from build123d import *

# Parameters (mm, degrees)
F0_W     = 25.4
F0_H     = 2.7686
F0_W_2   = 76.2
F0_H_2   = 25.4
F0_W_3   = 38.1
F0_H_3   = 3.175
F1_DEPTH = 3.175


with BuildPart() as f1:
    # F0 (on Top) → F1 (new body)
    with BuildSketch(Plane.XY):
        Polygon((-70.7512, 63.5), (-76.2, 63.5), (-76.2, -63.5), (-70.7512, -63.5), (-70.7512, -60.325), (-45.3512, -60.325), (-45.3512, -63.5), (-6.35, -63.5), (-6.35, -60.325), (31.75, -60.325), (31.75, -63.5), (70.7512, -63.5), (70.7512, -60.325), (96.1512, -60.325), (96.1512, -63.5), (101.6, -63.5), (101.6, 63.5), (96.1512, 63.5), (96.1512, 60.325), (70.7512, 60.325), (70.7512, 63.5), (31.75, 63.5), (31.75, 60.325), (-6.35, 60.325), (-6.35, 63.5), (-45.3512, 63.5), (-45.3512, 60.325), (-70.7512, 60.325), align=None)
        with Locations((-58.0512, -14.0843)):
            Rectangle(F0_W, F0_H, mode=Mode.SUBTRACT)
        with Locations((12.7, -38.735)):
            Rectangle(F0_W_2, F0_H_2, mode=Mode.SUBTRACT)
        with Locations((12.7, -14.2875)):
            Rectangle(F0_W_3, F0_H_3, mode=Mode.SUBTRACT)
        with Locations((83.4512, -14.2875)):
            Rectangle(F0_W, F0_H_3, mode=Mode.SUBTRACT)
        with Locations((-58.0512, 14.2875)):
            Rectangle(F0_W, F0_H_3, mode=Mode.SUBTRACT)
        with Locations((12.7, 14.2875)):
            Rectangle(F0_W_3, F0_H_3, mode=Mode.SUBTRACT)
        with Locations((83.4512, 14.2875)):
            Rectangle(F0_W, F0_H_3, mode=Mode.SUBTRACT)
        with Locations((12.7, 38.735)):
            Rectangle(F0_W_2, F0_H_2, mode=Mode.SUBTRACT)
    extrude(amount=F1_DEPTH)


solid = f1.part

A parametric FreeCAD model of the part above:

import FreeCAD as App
import Part
import Sketcher

V = App.Vector
Q = App.Units.Quantity

doc = App.newDocument("Part")
body = doc.addObject("PartDesign::Body", "Body")

# Sketch on XY plane
sketch1 = doc.addObject("Sketcher::SketchObject", "Sketch")
body.addObject(sketch1)
sketch1.AttachmentSupport = (doc.XY_Plane, [""])
sketch1.MapMode = "FlatFace"
sketch1.addGeometry([
    Part.LineSegment(V(-70.7512, 63.5, 0), V(-76.2, 63.5, 0)),  # 0
    Part.LineSegment(V(-76.2, 63.5, 0), V(-76.2, -63.5, 0)),  # 1
    Part.LineSegment(V(-76.2, -63.5, 0), V(-70.7512, -63.5, 0)),  # 2
    Part.LineSegment(V(-70.7512, -63.5, 0), V(-70.7512, -60.325, 0)),  # 3
    Part.LineSegment(V(-70.7512, -60.325, 0), V(-45.3512, -60.325, 0)),  # 4
    Part.LineSegment(V(-45.3512, -60.325, 0), V(-45.3512, -63.5, 0)),  # 5
    Part.LineSegment(V(-45.3512, -63.5, 0), V(-6.35, -63.5, 0)),  # 6
    Part.LineSegment(V(-6.35, -63.5, 0), V(-6.35, -60.325, 0)),  # 7
    Part.LineSegment(V(-6.35, -60.325, 0), V(31.75, -60.325, 0)),  # 8
    Part.LineSegment(V(31.75, -60.325, 0), V(31.75, -63.5, 0)),  # 9
    Part.LineSegment(V(31.75, -63.5, 0), V(70.7512, -63.5, 0)),  # 10
    Part.LineSegment(V(70.7512, -63.5, 0), V(70.7512, -60.325, 0)),  # 11
    Part.LineSegment(V(70.7512, -60.325, 0), V(96.1512, -60.325, 0)),  # 12
    Part.LineSegment(V(96.1512, -60.325, 0), V(96.1512, -63.5, 0)),  # 13
    Part.LineSegment(V(96.1512, -63.5, 0), V(101.6, -63.5, 0)),  # 14
    Part.LineSegment(V(101.6, -63.5, 0), V(101.6, 63.5, 0)),  # 15
    Part.LineSegment(V(101.6, 63.5, 0), V(96.1512, 63.5, 0)),  # 16
    Part.LineSegment(V(96.1512, 63.5, 0), V(96.1512, 60.325, 0)),  # 17
    Part.LineSegment(V(96.1512, 60.325, 0), V(70.7512, 60.325, 0)),  # 18
    Part.LineSegment(V(70.7512, 60.325, 0), V(70.7512, 63.5, 0)),  # 19
    Part.LineSegment(V(70.7512, 63.5, 0), V(31.75, 63.5, 0)),  # 20
    Part.LineSegment(V(31.75, 63.5, 0), V(31.75, 60.325, 0)),  # 21
    Part.LineSegment(V(31.75, 60.325, 0), V(-6.35, 60.325, 0)),  # 22
    Part.LineSegment(V(-6.35, 60.325, 0), V(-6.35, 63.5, 0)),  # 23
    Part.LineSegment(V(-6.35, 63.5, 0), V(-45.3512, 63.5, 0)),  # 24
    Part.LineSegment(V(-45.3512, 63.5, 0), V(-45.3512, 60.325, 0)),  # 25
    Part.LineSegment(V(-45.3512, 60.325, 0), V(-70.7512, 60.325, 0)),  # 26
    Part.LineSegment(V(-70.7512, 60.325, 0), V(-70.7512, 63.5, 0)),  # 27
    Part.LineSegment(V(50.8, -51.435, 0), V(-25.4, -51.435, 0)),  # 28
    Part.LineSegment(V(-25.4, -51.435, 0), V(-25.4, -26.035, 0)),  # 29
    Part.LineSegment(V(-25.4, -26.035, 0), V(50.8, -26.035, 0)),  # 30
    Part.LineSegment(V(50.8, -26.035, 0), V(50.8, -51.435, 0)),  # 31
    Part.LineSegment(V(-45.3512, -15.4686, 0), V(-70.7512, -15.4686, 0)),  # 32
    Part.LineSegment(V(-70.7512, -15.4686, 0), V(-70.7512, -12.7, 0)),  # 33
    Part.LineSegment(V(-70.7512, -12.7, 0), V(-45.3512, -12.7, 0)),  # 34
    Part.LineSegment(V(-45.3512, -12.7, 0), V(-45.3512, -15.4686, 0)),  # 35
    Part.LineSegment(V(31.75, -15.875, 0), V(-6.35, -15.875, 0)),  # 36
    Part.LineSegment(V(-6.35, -15.875, 0), V(-6.35, -12.7, 0)),  # 37
    Part.LineSegment(V(-6.35, -12.7, 0), V(31.75, -12.7, 0)),  # 38
    Part.LineSegment(V(31.75, -12.7, 0), V(31.75, -15.875, 0)),  # 39
    Part.LineSegment(V(96.1512, -15.875, 0), V(70.7512, -15.875, 0)),  # 40
    Part.LineSegment(V(70.7512, -15.875, 0), V(70.7512, -12.7, 0)),  # 41
    Part.LineSegment(V(70.7512, -12.7, 0), V(96.1512, -12.7, 0)),  # 42
    Part.LineSegment(V(96.1512, -12.7, 0), V(96.1512, -15.875, 0)),  # 43
    Part.LineSegment(V(-45.3512, 12.7, 0), V(-70.7512, 12.7, 0)),  # 44
    Part.LineSegment(V(-70.7512, 12.7, 0), V(-70.7512, 15.875, 0)),  # 45
    Part.LineSegment(V(-70.7512, 15.875, 0), V(-45.3512, 15.875, 0)),  # 46
    Part.LineSegment(V(-45.3512, 15.875, 0), V(-45.3512, 12.7, 0)),  # 47
    Part.LineSegment(V(31.75, 12.7, 0), V(-6.35, 12.7, 0)),  # 48
    Part.LineSegment(V(-6.35, 12.7, 0), V(-6.35, 15.875, 0)),  # 49
    Part.LineSegment(V(-6.35, 15.875, 0), V(31.75, 15.875, 0)),  # 50
    Part.LineSegment(V(31.75, 15.875, 0), V(31.75, 12.7, 0)),  # 51
    Part.LineSegment(V(50.8, 26.035, 0), V(-25.4, 26.035, 0)),  # 52
    Part.LineSegment(V(-25.4, 26.035, 0), V(-25.4, 51.435, 0)),  # 53
    Part.LineSegment(V(-25.4, 51.435, 0), V(50.8, 51.435, 0)),  # 54
    Part.LineSegment(V(50.8, 51.435, 0), V(50.8, 26.035, 0)),  # 55
    Part.LineSegment(V(96.1512, 12.7, 0), V(70.7512, 12.7, 0)),  # 56
    Part.LineSegment(V(70.7512, 12.7, 0), V(70.7512, 15.875, 0)),  # 57
    Part.LineSegment(V(70.7512, 15.875, 0), V(96.1512, 15.875, 0)),  # 58
    Part.LineSegment(V(96.1512, 15.875, 0), V(96.1512, 12.7, 0)),  # 59
], False)
sketch1.addConstraint([
    Sketcher.Constraint("Coincident", 0, 2, 1, 1),
    Sketcher.Constraint("Coincident", 1, 2, 2, 1),
    Sketcher.Constraint("Coincident", 2, 2, 3, 1),
    Sketcher.Constraint("Coincident", 3, 2, 4, 1),
    Sketcher.Constraint("Coincident", 4, 2, 5, 1),
    Sketcher.Constraint("Coincident", 5, 2, 6, 1),
    Sketcher.Constraint("Coincident", 6, 2, 7, 1),
    Sketcher.Constraint("Coincident", 7, 2, 8, 1),
    Sketcher.Constraint("Coincident", 8, 2, 9, 1),
    Sketcher.Constraint("Coincident", 9, 2, 10, 1),
    Sketcher.Constraint("Coincident", 10, 2, 11, 1),
    Sketcher.Constraint("Coincident", 11, 2, 12, 1),
    Sketcher.Constraint("Coincident", 12, 2, 13, 1),
    Sketcher.Constraint("Coincident", 13, 2, 14, 1),
    Sketcher.Constraint("Coincident", 14, 2, 15, 1),
    Sketcher.Constraint("Coincident", 15, 2, 16, 1),
    Sketcher.Constraint("Coincident", 16, 2, 17, 1),
    Sketcher.Constraint("Coincident", 17, 2, 18, 1),
    Sketcher.Constraint("Coincident", 18, 2, 19, 1),
    Sketcher.Constraint("Coincident", 19, 2, 20, 1),
    Sketcher.Constraint("Coincident", 20, 2, 21, 1),
    Sketcher.Constraint("Coincident", 21, 2, 22, 1),
    Sketcher.Constraint("Coincident", 22, 2, 23, 1),
    Sketcher.Constraint("Coincident", 23, 2, 24, 1),
    Sketcher.Constraint("Coincident", 24, 2, 25, 1),
    Sketcher.Constraint("Coincident", 25, 2, 26, 1),
    Sketcher.Constraint("Coincident", 26, 2, 27, 1),
    Sketcher.Constraint("Coincident", 27, 2, 0, 1),
    Sketcher.Constraint("Coincident", 28, 2, 29, 1),
    Sketcher.Constraint("Coincident", 29, 2, 30, 1),
    Sketcher.Constraint("Coincident", 30, 2, 31, 1),
    Sketcher.Constraint("Coincident", 31, 2, 28, 1),
    Sketcher.Constraint("Coincident", 32, 2, 33, 1),
    Sketcher.Constraint("Coincident", 33, 2, 34, 1),
    Sketcher.Constraint("Coincident", 34, 2, 35, 1),
    Sketcher.Constraint("Coincident", 35, 2, 32, 1),
    Sketcher.Constraint("Coincident", 36, 2, 37, 1),
    Sketcher.Constraint("Coincident", 37, 2, 38, 1),
    Sketcher.Constraint("Coincident", 38, 2, 39, 1),
    Sketcher.Constraint("Coincident", 39, 2, 36, 1),
    Sketcher.Constraint("Coincident", 40, 2, 41, 1),
    Sketcher.Constraint("Coincident", 41, 2, 42, 1),
    Sketcher.Constraint("Coincident", 42, 2, 43, 1),
    Sketcher.Constraint("Coincident", 43, 2, 40, 1),
    Sketcher.Constraint("Coincident", 44, 2, 45, 1),
    Sketcher.Constraint("Coincident", 45, 2, 46, 1),
    Sketcher.Constraint("Coincident", 46, 2, 47, 1),
    Sketcher.Constraint("Coincident", 47, 2, 44, 1),
    Sketcher.Constraint("Coincident", 48, 2, 49, 1),
    Sketcher.Constraint("Coincident", 49, 2, 50, 1),
    Sketcher.Constraint("Coincident", 50, 2, 51, 1),
    Sketcher.Constraint("Coincident", 51, 2, 48, 1),
    Sketcher.Constraint("Coincident", 52, 2, 53, 1),
    Sketcher.Constraint("Coincident", 53, 2, 54, 1),
    Sketcher.Constraint("Coincident", 54, 2, 55, 1),
    Sketcher.Constraint("Coincident", 55, 2, 52, 1),
    Sketcher.Constraint("Coincident", 56, 2, 57, 1),
    Sketcher.Constraint("Coincident", 57, 2, 58, 1),
    Sketcher.Constraint("Coincident", 58, 2, 59, 1),
    Sketcher.Constraint("Coincident", 59, 2, 56, 1),
    Sketcher.Constraint("Horizontal", 0),
    Sketcher.Constraint("Vertical", 1),
    Sketcher.Constraint("Horizontal", 2),
    Sketcher.Constraint("Vertical", 3),
    Sketcher.Constraint("Horizontal", 4),
    Sketcher.Constraint("Vertical", 5),
    Sketcher.Constraint("Horizontal", 6),
    Sketcher.Constraint("Vertical", 7),
    Sketcher.Constraint("Horizontal", 8),
    Sketcher.Constraint("Vertical", 9),
    Sketcher.Constraint("Horizontal", 10),
    Sketcher.Constraint("Vertical", 11),
    Sketcher.Constraint("Horizontal", 12),
    Sketcher.Constraint("Vertical", 13),
    Sketcher.Constraint("Horizontal", 14),
    Sketcher.Constraint("Vertical", 15),
    Sketcher.Constraint("Horizontal", 16),
    Sketcher.Constraint("Vertical", 17),
    Sketcher.Constraint("Horizontal", 18),
    Sketcher.Constraint("Vertical", 19),
    Sketcher.Constraint("Horizontal", 20),
    Sketcher.Constraint("Vertical", 21),
    Sketcher.Constraint("Horizontal", 22),
    Sketcher.Constraint("Vertical", 23),
    Sketcher.Constraint("Horizontal", 24),
    Sketcher.Constraint("Vertical", 25),
    Sketcher.Constraint("Horizontal", 26),
    Sketcher.Constraint("Vertical", 27),
    Sketcher.Constraint("Horizontal", 28),
    Sketcher.Constraint("Vertical", 29),
    Sketcher.Constraint("Horizontal", 30),
    Sketcher.Constraint("Vertical", 31),
    Sketcher.Constraint("Horizontal", 32),
    Sketcher.Constraint("Vertical", 33),
    Sketcher.Constraint("Horizontal", 34),
    Sketcher.Constraint("Vertical", 35),
    Sketcher.Constraint("Horizontal", 36),
    Sketcher.Constraint("Vertical", 37),
    Sketcher.Constraint("Horizontal", 38),
    Sketcher.Constraint("Vertical", 39),
    Sketcher.Constraint("Horizontal", 40),
    Sketcher.Constraint("Vertical", 41),
    Sketcher.Constraint("Horizontal", 42),
    Sketcher.Constraint("Vertical", 43),
    Sketcher.Constraint("Horizontal", 44),
    Sketcher.Constraint("Vertical", 45),
    Sketcher.Constraint("Horizontal", 46),
    Sketcher.Constraint("Vertical", 47),
    Sketcher.Constraint("Horizontal", 48),
    Sketcher.Constraint("Vertical", 49),
    Sketcher.Constraint("Horizontal", 50),
    Sketcher.Constraint("Vertical", 51),
    Sketcher.Constraint("Horizontal", 52),
    Sketcher.Constraint("Vertical", 53),
    Sketcher.Constraint("Horizontal", 54),
    Sketcher.Constraint("Vertical", 55),
    Sketcher.Constraint("Horizontal", 56),
    Sketcher.Constraint("Vertical", 57),
    Sketcher.Constraint("Horizontal", 58),
    Sketcher.Constraint("Vertical", 59),
    Sketcher.Constraint("Symmetric", 3, 2, 18, 2, -1, 1),
    Sketcher.Constraint("Symmetric", 11, 2, 26, 2, -1, 1),
    Sketcher.Constraint("Symmetric", 41, 2, 44, 2, -1, 1),
    Sketcher.Constraint("Symmetric", 33, 2, 56, 2, -1, 1),
    Sketcher.Constraint("Symmetric", 2, 2, 10, 2, -2),
    Sketcher.Constraint("Symmetric", 33, 2, 41, 2, -2),
    Sketcher.Constraint("Symmetric", 13, 2, 16, 2, -1),
    Sketcher.Constraint("Symmetric", 9, 2, 20, 2, -1),
    Sketcher.Constraint("Symmetric", 7, 2, 22, 2, -1),
    Sketcher.Constraint("Symmetric", 5, 2, 24, 2, -1),
    Sketcher.Constraint("Symmetric", 37, 2, 48, 2, -1),
    Sketcher.Constraint("Symmetric", 39, 2, 50, 2, -1),
    Sketcher.Constraint("Symmetric", 29, 2, 52, 2, -1),
    Sketcher.Constraint("Symmetric", 31, 2, 54, 2, -1),
    Sketcher.Constraint("Symmetric", 43, 2, 58, 2, -1),
    Sketcher.Constraint("Horizontal", 2, 2, 5, 2),
    Sketcher.Constraint("Horizontal", 4, 2, 7, 2),
    Sketcher.Constraint("Horizontal", 8, 2, 11, 2),
    Sketcher.Constraint("Horizontal", 10, 2, 13, 2),
    Sketcher.Constraint("Horizontal", 0, 2, 15, 2),
    Sketcher.Constraint("Horizontal", 34, 2, 37, 2),
    Sketcher.Constraint("Horizontal", 39, 2, 40, 2),
    Sketcher.Constraint("Horizontal", 46, 2, 49, 2),
    Sketcher.Constraint("Vertical", 27, 2, 32, 2),
    Sketcher.Constraint("Vertical", 25, 2, 34, 2),
    Sketcher.Constraint("Vertical", 23, 2, 36, 2),
    Sketcher.Constraint("Vertical", 21, 2, 38, 2),
    Sketcher.Constraint("Vertical", 17, 2, 42, 2),
    Sketcher.Constraint("Vertical", 35, 2, 46, 2),
    Sketcher.Constraint("Equal", 6, 10),
    Sketcher.Constraint("Equal", 4, 12),
    Sketcher.Constraint("Equal", 2, 14),
    Sketcher.Constraint("Equal", 58, 29),
    Sketcher.Constraint("Equal", 27, 37),
    Sketcher.Constraint("DistanceX", 4, 1, 4, 2, Q("1 in")),
    Sketcher.Constraint("DistanceX", 28, 2, 28, 1, Q("3 in")),
    Sketcher.Constraint("DistanceY", 1, 2, 1, 1, Q("5 in")),
    Sketcher.Constraint("DistanceX", 8, 1, 8, 2, Q("1.5 in")),
    Sketcher.Constraint("DistanceX", 0, 2, -1, 1, Q("3 in")),
    Sketcher.Constraint("DistanceX", 28, 2, -1, 1, Q("1 in")),
    Sketcher.Constraint("DistanceY", 2, 2, 33, 2, Q("2 in")),
    Sketcher.Constraint("DistanceY", 29, 2, 36, 2, Q("0.4 in")),
    Sketcher.Constraint("DistanceY", 3, 1, 3, 2, Q("0.125 in")),
    Sketcher.Constraint("DistanceY", 33, 1, 33, 2, Q("0.109 in")),
    Sketcher.Constraint("DistanceX", 0, 2, 0, 1, 5.4488),
])
pad1 = doc.addObject("PartDesign::Pad", "Pad")
body.addObject(pad1)
pad1.Profile = sketch1
pad1.Length = Q("0.125 in")

doc.recompute()
